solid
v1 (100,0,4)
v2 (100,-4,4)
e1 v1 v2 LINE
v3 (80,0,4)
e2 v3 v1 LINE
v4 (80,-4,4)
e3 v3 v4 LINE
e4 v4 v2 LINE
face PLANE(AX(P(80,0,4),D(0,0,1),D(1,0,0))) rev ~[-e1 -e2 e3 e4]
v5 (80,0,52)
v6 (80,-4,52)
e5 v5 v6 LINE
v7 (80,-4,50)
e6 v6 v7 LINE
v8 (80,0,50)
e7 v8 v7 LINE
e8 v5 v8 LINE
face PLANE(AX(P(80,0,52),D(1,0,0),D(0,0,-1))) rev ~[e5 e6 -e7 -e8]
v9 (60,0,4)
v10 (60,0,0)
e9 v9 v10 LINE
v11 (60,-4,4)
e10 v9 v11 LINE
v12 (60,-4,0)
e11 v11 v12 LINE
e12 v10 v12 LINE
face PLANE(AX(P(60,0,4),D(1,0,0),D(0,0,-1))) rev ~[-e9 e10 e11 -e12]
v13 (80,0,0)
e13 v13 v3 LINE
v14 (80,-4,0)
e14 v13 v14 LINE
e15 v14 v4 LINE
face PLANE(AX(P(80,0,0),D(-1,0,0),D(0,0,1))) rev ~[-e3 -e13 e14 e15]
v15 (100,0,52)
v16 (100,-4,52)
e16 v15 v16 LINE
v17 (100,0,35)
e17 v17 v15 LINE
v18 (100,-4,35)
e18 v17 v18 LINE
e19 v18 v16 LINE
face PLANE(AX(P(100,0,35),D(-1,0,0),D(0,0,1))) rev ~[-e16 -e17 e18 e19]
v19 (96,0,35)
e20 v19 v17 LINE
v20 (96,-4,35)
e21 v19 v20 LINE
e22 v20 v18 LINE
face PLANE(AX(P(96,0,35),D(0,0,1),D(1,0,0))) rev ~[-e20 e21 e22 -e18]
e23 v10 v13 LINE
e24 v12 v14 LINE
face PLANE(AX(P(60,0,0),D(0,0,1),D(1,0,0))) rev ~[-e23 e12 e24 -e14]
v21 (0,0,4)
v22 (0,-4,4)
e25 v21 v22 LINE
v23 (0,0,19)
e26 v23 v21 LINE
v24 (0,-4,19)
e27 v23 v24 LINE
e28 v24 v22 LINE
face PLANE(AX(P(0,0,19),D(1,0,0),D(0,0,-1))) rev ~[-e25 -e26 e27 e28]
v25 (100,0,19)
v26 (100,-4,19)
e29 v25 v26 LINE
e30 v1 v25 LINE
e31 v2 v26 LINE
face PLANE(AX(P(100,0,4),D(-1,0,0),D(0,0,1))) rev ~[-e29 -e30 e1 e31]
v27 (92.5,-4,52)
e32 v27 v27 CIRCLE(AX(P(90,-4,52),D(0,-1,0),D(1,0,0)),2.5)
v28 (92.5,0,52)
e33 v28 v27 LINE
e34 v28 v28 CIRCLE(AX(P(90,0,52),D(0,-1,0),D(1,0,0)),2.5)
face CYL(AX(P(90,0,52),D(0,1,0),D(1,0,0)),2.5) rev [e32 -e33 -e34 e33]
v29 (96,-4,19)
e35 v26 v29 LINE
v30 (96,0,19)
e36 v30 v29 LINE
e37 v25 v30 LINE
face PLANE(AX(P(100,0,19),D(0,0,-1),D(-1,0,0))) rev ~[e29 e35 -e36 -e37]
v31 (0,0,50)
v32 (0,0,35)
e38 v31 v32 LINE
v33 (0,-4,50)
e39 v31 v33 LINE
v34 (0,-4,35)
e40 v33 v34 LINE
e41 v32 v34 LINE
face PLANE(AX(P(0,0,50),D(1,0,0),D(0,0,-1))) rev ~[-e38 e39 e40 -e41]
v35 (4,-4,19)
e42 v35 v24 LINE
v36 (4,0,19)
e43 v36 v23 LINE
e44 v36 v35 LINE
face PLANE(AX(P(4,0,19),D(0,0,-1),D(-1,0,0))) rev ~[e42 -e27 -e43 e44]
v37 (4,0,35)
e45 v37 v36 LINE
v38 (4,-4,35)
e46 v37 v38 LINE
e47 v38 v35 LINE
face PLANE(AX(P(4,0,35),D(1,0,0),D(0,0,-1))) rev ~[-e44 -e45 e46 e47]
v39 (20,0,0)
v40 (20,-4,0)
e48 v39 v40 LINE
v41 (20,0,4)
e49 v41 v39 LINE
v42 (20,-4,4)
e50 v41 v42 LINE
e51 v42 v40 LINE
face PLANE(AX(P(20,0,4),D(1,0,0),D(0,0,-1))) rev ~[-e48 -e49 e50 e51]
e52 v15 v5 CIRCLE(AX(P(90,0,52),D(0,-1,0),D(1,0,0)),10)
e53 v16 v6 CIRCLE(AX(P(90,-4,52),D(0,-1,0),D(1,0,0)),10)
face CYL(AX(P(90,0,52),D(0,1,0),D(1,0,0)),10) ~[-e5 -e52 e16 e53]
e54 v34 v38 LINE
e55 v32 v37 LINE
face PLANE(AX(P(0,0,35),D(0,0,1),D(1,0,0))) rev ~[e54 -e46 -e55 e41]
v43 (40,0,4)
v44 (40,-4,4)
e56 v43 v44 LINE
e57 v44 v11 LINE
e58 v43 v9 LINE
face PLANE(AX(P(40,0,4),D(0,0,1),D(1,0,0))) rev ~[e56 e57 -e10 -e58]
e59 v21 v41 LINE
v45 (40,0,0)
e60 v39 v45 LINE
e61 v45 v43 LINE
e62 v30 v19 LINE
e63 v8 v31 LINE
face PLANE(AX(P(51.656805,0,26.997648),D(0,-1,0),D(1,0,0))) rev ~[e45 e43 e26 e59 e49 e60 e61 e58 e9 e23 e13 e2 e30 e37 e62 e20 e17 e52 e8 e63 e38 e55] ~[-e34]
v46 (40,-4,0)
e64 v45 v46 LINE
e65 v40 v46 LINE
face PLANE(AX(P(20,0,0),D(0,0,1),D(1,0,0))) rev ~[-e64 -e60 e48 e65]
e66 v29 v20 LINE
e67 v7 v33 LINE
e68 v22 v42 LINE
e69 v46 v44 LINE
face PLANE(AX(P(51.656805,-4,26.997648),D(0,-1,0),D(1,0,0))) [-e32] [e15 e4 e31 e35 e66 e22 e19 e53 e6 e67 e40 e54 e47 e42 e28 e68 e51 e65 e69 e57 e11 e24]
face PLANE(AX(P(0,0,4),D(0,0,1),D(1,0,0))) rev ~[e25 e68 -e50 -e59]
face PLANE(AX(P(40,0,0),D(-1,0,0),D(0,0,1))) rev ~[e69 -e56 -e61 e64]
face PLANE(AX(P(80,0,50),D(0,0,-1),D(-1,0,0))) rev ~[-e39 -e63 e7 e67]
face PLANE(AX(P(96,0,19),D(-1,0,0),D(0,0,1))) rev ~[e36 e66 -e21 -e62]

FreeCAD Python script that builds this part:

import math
import FreeCAD as App
import Part
import Sketcher

V = App.Vector

doc = App.newDocument("Part")
params = doc.addObject("Spreadsheet::Sheet", "Params")
for row, (alias, value) in enumerate([
    ("sketch1_diameter", "5 mm"),
    ("sketch1_radius", "10 mm"),
    ("sketch1_width", "4 mm"),
    ("sketch1_height", "15 mm"),
    ("sketch1_height2", "16 mm"),
    ("pad1_length", "4 mm"),
], start=1):
    params.set(f"A{row}", alias)
    params.set(f"B{row}", "=" + value)
    params.setAlias(f"B{row}", alias)

body = doc.addObject("PartDesign::Body", "Body")

# Sketch on XZ plane
sketch1 = body.newObject("Sketcher::SketchObject", "Sketch")
sketch1.AttachmentSupport = (doc.getObject("XZ_Plane"), [""])
sketch1.MapMode = "FlatFace"
sketch1.addGeometry([
    Part.LineSegment(V(20, 4, 0), V(20, 0, 0)),  # 0
    Part.LineSegment(V(20, 0, 0), V(40, 0, 0)),  # 1
    Part.LineSegment(V(40, 0, 0), V(40, 4, 0)),  # 2
    Part.LineSegment(V(40, 4, 0), V(60, 4, 0)),  # 3
    Part.LineSegment(V(60, 4, 0), V(60, 0, 0)),  # 4
    Part.LineSegment(V(60, 0, 0), V(80, 0, 0)),  # 5
    Part.LineSegment(V(80, 0, 0), V(80, 4, 0)),  # 6
    Part.LineSegment(V(80, 4, 0), V(100, 4, 0)),  # 7
    Part.LineSegment(V(100, 4, 0), V(100, 19, 0)),  # 8
    Part.LineSegment(V(100, 19, 0), V(96, 19, 0)),  # 9
    Part.LineSegment(V(96, 19, 0), V(96, 35, 0)),  # 10
    Part.LineSegment(V(96, 35, 0), V(100, 35, 0)),  # 11
    Part.LineSegment(V(100, 35, 0), V(100, 52, 0)),  # 12
    Part.ArcOfCircle(Part.Circle(V(90, 52, 0), V(0, 0, 1), 10), math.radians(0), math.radians(180)),  # 13
    Part.LineSegment(V(80, 52, 0), V(80, 50, 0)),  # 14
    Part.LineSegment(V(80, 50, 0), V(0, 50, 0)),  # 15
    Part.LineSegment(V(0, 50, 0), V(0, 35, 0)),  # 16
    Part.LineSegment(V(0, 35, 0), V(4, 35, 0)),  # 17
    Part.LineSegment(V(4, 35, 0), V(4, 19, 0)),  # 18
    Part.LineSegment(V(4, 19, 0), V(0, 19, 0)),  # 19
    Part.LineSegment(V(0, 19, 0), V(0, 4, 0)),  # 20
    Part.LineSegment(V(0, 4, 0), V(20, 4, 0)),  # 21
    Part.Circle(V(90, 52, 0), V(0, 0, 1), 2.5),  # 22
], False)
sketch1.addConstraint([
    Sketcher.Constraint("Coincident", 0, 2, 1, 1),
    Sketcher.Constraint("Coincident", 1, 2, 2, 1),
    Sketcher.Constraint("Coincident", 2, 2, 3, 1),
    Sketcher.Constraint("Coincident", 3, 2, 4, 1),
    Sketcher.Constraint("Coincident", 4, 2, 5, 1),
    Sketcher.Constraint("Coincident", 5, 2, 6, 1),
    Sketcher.Constraint("Coincident", 6, 2, 7, 1),
    Sketcher.Constraint("Coincident", 7, 2, 8, 1),
    Sketcher.Constraint("Coincident", 8, 2, 9, 1),
    Sketcher.Constraint("Coincident", 9, 2, 10, 1),
    Sketcher.Constraint("Coincident", 10, 2, 11, 1),
    Sketcher.Constraint("Coincident", 11, 2, 12, 1),
    Sketcher.Constraint("Tangent", 12, 2, 13, 1),
    Sketcher.Constraint("Tangent", 13, 2, 14, 1),
    Sketcher.Constraint("Coincident", 14, 2, 15, 1),
    Sketcher.Constraint("Coincident", 15, 2, 16, 1),
    Sketcher.Constraint("Coincident", 16, 2, 17, 1),
    Sketcher.Constraint("Coincident", 17, 2, 18, 1),
    Sketcher.Constraint("Coincident", 18, 2, 19, 1),
    Sketcher.Constraint("Coincident", 19, 2, 20, 1),
    Sketcher.Constraint("Coincident", 20, 2, 21, 1),
    Sketcher.Constraint("Coincident", 21, 2, 0, 1),
    Sketcher.Constraint("Vertical", 0),
    Sketcher.Constraint("Horizontal", 1),
    Sketcher.Constraint("Vertical", 2),
    Sketcher.Constraint("Horizontal", 3),
    Sketcher.Constraint("Vertical", 4),
    Sketcher.Constraint("Horizontal", 5),
    Sketcher.Constraint("Vertical", 6),
    Sketcher.Constraint("Horizontal", 7),
    Sketcher.Constraint("Vertical", 8),
    Sketcher.Constraint("Horizontal", 9),
    Sketcher.Constraint("Vertical", 10),
    Sketcher.Constraint("Horizontal", 11),
    Sketcher.Constraint("Vertical", 12),
    Sketcher.Constraint("Vertical", 14),
    Sketcher.Constraint("Horizontal", 15),
    Sketcher.Constraint("Vertical", 16),
    Sketcher.Constraint("Horizontal", 17),
    Sketcher.Constraint("Vertical", 18),
    Sketcher.Constraint("Horizontal", 19),
    Sketcher.Constraint("Vertical", 20),
    Sketcher.Constraint("Horizontal", 21),
    Sketcher.Constraint("Coincident", 22, 3, 13, 3),
    Sketcher.Constraint("PointOnObject", 0, 2, -1),
    Sketcher.Constraint("PointOnObject", 4, 2, -1),
    Sketcher.Constraint("PointOnObject", 15, 2, -2),
    Sketcher.Constraint("PointOnObject", 19, 2, -2),
    Sketcher.Constraint("Horizontal", 3, 2, 6, 2),
    Sketcher.Constraint("Horizontal", 11, 2, 16, 2),
    Sketcher.Constraint("Horizontal", 9, 2, 18, 2),
    Sketcher.Constraint("Horizontal", 7, 2, 20, 2),
    Sketcher.Constraint("Vertical", 8, 2, 11, 2),
    Sketcher.Constraint("Vertical", 6, 2, 13, 2),
    Sketcher.Constraint("Equal", 1, 3),
    Sketcher.Constraint("Equal", 3, 5),
    Sketcher.Constraint("Equal", 5, 7),
    Sketcher.Constraint("Equal", 11, 17),
    Sketcher.Constraint("Equal", 7, 21),
    Sketcher.Constraint("Equal", 19, 0),
    Sketcher.Constraint("Equal", 8, 16),
    Sketcher.Constraint("Diameter", 22, 5.0),
    Sketcher.Constraint("Radius", 13, 10.0),
    Sketcher.Constraint("DistanceX", 9, 2, 9, 1, 4.0),
    Sketcher.Constraint("DistanceY", 8, 1, 8, 2, 15.0),
    Sketcher.Constraint("DistanceY", 10, 1, 10, 2, 16.0),
    Sketcher.Constraint("DistanceY", 12, 1, 12, 2, 17.0),
])
sketch1.setExpression("Constraints[61]", "Params.sketch1_diameter")
sketch1.setExpression("Constraints[62]", "Params.sketch1_radius")
sketch1.setExpression("Constraints[63]", "Params.sketch1_width")
sketch1.setExpression("Constraints[64]", "Params.sketch1_height")
sketch1.setExpression("Constraints[65]", "Params.sketch1_height2")
pad1 = body.newObject("PartDesign::Pad", "Pad")
pad1.Profile = sketch1
pad1.setExpression("Length", "Params.pad1_length")

doc.recompute()
